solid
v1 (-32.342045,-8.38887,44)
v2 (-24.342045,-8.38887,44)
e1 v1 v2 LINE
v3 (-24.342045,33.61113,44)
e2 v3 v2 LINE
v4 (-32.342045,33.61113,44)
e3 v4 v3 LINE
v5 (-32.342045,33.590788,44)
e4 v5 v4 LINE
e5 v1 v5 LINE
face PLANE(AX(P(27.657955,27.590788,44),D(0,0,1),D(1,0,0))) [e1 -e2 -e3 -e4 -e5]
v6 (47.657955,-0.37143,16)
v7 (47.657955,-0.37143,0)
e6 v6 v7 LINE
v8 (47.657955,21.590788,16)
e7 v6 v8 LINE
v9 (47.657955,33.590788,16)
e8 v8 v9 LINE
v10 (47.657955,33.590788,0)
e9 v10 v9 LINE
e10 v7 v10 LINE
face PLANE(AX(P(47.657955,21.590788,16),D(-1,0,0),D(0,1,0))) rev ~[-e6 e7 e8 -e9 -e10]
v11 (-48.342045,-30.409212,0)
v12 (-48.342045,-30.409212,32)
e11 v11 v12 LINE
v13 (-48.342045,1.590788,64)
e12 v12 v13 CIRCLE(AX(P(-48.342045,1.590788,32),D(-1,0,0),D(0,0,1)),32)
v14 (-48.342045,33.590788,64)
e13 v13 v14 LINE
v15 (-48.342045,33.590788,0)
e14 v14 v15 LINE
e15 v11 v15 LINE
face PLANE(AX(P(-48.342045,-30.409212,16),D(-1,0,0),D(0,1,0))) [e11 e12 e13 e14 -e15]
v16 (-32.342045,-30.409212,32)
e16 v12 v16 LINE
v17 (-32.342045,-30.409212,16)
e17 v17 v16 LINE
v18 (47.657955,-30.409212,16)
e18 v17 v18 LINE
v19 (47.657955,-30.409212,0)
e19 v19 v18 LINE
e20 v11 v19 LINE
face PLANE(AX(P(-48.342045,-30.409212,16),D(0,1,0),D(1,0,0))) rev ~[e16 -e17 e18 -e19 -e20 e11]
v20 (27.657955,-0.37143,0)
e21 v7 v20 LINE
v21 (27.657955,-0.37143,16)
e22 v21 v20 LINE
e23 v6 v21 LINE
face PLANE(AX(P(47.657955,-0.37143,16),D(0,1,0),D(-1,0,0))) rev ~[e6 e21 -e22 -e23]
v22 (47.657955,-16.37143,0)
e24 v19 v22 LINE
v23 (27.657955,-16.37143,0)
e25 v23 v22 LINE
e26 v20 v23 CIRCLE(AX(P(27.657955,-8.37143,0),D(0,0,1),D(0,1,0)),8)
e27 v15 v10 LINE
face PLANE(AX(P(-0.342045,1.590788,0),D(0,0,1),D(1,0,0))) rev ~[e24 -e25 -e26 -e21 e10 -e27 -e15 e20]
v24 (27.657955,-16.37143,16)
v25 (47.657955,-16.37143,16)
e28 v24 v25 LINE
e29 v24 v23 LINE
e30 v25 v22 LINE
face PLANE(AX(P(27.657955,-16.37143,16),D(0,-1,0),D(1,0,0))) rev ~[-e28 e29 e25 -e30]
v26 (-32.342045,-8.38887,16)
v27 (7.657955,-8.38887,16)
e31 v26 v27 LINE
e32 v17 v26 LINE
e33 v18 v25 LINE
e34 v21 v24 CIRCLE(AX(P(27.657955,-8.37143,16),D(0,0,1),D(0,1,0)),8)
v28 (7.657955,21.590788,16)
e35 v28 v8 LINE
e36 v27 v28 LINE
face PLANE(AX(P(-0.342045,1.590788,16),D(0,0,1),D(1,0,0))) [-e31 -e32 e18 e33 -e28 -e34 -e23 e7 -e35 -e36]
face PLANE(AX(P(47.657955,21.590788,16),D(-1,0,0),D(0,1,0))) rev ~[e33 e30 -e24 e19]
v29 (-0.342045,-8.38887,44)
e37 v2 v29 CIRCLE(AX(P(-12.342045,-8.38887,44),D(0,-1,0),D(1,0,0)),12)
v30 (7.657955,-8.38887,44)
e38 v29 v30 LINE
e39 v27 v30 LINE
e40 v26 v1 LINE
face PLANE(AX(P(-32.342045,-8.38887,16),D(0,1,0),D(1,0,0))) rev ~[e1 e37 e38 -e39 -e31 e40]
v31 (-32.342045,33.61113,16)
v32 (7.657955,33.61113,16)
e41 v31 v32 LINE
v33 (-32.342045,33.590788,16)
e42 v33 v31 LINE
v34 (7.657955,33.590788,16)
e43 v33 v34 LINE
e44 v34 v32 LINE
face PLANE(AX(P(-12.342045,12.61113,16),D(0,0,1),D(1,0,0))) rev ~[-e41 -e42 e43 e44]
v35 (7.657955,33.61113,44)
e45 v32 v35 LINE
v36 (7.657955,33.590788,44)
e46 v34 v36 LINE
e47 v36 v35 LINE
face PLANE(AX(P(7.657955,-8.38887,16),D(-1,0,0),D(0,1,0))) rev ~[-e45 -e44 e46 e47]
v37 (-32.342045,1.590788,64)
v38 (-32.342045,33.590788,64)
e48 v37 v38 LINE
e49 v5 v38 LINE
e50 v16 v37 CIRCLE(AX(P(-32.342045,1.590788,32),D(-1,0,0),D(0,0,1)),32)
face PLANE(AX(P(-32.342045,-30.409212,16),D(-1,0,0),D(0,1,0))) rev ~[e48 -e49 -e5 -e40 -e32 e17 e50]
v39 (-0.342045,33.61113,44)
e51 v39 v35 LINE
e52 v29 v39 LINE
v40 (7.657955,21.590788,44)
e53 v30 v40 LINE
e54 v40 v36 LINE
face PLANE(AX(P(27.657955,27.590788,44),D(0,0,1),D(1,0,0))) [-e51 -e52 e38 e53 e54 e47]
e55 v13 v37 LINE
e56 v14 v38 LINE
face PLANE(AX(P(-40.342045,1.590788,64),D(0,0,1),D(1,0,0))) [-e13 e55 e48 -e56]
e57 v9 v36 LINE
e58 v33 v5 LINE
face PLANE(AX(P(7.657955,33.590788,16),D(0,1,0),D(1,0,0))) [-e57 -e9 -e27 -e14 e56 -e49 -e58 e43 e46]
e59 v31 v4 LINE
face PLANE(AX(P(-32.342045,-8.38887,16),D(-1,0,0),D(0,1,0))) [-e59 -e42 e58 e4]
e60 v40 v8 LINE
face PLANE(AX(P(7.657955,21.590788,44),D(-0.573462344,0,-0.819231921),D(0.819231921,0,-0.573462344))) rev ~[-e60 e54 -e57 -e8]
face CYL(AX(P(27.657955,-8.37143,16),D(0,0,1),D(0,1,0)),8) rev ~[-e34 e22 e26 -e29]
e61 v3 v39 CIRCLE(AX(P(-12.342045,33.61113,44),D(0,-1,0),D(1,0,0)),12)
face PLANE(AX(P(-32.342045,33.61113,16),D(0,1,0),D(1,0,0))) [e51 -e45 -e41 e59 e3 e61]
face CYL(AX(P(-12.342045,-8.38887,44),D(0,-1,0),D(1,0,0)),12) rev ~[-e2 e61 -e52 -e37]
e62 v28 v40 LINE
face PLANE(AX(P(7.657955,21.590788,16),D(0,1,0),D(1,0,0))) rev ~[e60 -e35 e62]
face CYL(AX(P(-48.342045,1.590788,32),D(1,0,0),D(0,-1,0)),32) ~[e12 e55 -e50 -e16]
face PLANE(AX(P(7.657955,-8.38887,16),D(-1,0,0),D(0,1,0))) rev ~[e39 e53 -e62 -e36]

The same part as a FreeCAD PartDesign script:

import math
import FreeCAD as App
import Part
import Sketcher
Q = App.Units.Quantity


def edges_at(feature, points):
    """Names of the edges that pass closest to the given points."""
    edges = feature.Shape.Edges
    near = lambda p: min(range(len(edges)), key=lambda i: edges[i].distToShape(Part.Vertex(*p))[0])
    return sorted({f"Edge{near(p) + 1}" for p in points})

doc = App.newDocument("Part")
body = doc.addObject("PartDesign::Body", "Body")

# Sketch on XY plane
sketch1 = doc.addObject("Sketcher::SketchObject", "Sketch")
body.addObject(sketch1)
sketch1.AttachmentSupport = (doc.XY_Plane, [""])
sketch1.MapMode = "FlatFace"
sketch1.addGeometry([
    Part.LineSegment(App.Vector(-48.342045, 33.590788, 0), App.Vector(-48.342045, -30.409212, 0)),
    Part.LineSegment(App.Vector(-48.342045, -30.409212, 0), App.Vector(47.657955, -30.409212, 0)),
    Part.LineSegment(App.Vector(47.657955, -30.409212, 0), App.Vector(47.657955, 33.590788, 0)),
    Part.LineSegment(App.Vector(47.657955, 33.590788, 0), App.Vector(-48.342045, 33.590788, 0)),
], False)
sketch1.addConstraint([
    Sketcher.Constraint("Coincident", 0, 2, 1, 1),
    Sketcher.Constraint("Coincident", 1, 2, 2, 1),
    Sketcher.Constraint("Coincident", 2, 2, 3, 1),
    Sketcher.Constraint("Coincident", 3, 2, 0, 1),
    Sketcher.Constraint("Vertical", 0),
    Sketcher.Constraint("Horizontal", 1),
    Sketcher.Constraint("Vertical", 2),
    Sketcher.Constraint("Horizontal", 3),
    Sketcher.Constraint("DistanceX", 1, 1, 1, 2, Q("96 mm")),
    Sketcher.Constraint("DistanceY", 0, 2, 0, 1, Q("64 mm")),
    Sketcher.Constraint("DistanceY", 0, 2, -1, 1, Q("30.409212 mm")),
    Sketcher.Constraint("DistanceX", 0, 2, -1, 1, Q("48.342045 mm")),
])
pad1 = doc.addObject("PartDesign::Pad", "Pad")
body.addObject(pad1)
pad1.Profile = sketch1
pad1.Length = 16

# Sketch on XY plane
sketch2 = doc.addObject("Sketcher::SketchObject", "Sketch001")
body.addObject(sketch2)
sketch2.AttachmentSupport = (doc.XY_Plane, [""])
sketch2.MapMode = "FlatFace"
sketch2.AttachmentOffset = App.Placement(App.Vector(0, 0, 16), App.Rotation())
sketch2.addGeometry([
    Part.LineSegment(App.Vector(-48.342045, 33.590788, 0), App.Vector(-48.342045, -30.409212, 0)),
    Part.LineSegment(App.Vector(-48.342045, -30.409212, 0), App.Vector(-32.342045, -30.409212, 0)),
    Part.LineSegment(App.Vector(-32.342045, -30.409212, 0), App.Vector(-32.342045, 33.590788, 0)),
    Part.LineSegment(App.Vector(-32.342045, 33.590788, 0), App.Vector(-48.342045, 33.590788, 0)),
], False)
sketch2.addConstraint([
    Sketcher.Constraint("Coincident", 0, 2, 1, 1),
    Sketcher.Constraint("Coincident", 1, 2, 2, 1),
    Sketcher.Constraint("Coincident", 2, 2, 3, 1),
    Sketcher.Constraint("Coincident", 3, 2, 0, 1),
    Sketcher.Constraint("Vertical", 0),
    Sketcher.Constraint("Horizontal", 1),
    Sketcher.Constraint("Vertical", 2),
    Sketcher.Constraint("Horizontal", 3),
    Sketcher.Constraint("DistanceX", 1, 1, 1, 2, Q("16 mm")),
    Sketcher.Constraint("DistanceY", 0, 2, 0, 1, Q("64 mm")),
    Sketcher.Constraint("DistanceY", 0, 2, -1, 1, Q("30.409212 mm")),
    Sketcher.Constraint("DistanceX", 0, 2, -1, 1, Q("48.342045 mm")),
])
pad2 = doc.addObject("PartDesign::Pad", "Pad001")
body.addObject(pad2)
pad2.Profile = sketch2
pad2.Length = 48
doc.recompute()

fillet = doc.addObject("PartDesign::Fillet", "Fillet")
body.addObject(fillet)
fillet.Base = (pad2, edges_at(pad2, [(-40.342, -30.409, 64)]))
fillet.Radius = 32

# Sketch on XY plane
sketch3 = doc.addObject("Sketcher::SketchObject", "Sketch002")
body.addObject(sketch3)
sketch3.AttachmentSupport = (doc.XY_Plane, [""])
sketch3.MapMode = "FlatFace"
sketch3.AttachmentOffset = App.Placement(App.Vector(0, 0, 16), App.Rotation())
sketch3.addGeometry([
    Part.LineSegment(App.Vector(-32.342045, 33.61113, 0), App.Vector(-32.342045, -8.38887, 0)),
    Part.LineSegment(App.Vector(-32.342045, -8.38887, 0), App.Vector(7.657955, -8.38887, 0)),
    Part.LineSegment(App.Vector(7.657955, -8.38887, 0), App.Vector(7.657955, 33.61113, 0)),
    Part.LineSegment(App.Vector(7.657955, 33.61113, 0), App.Vector(-32.342045, 33.61113, 0)),
], False)
sketch3.addConstraint([
    Sketcher.Constraint("Coincident", 0, 2, 1, 1),
    Sketcher.Constraint("Coincident", 1, 2, 2, 1),
    Sketcher.Constraint("Coincident", 2, 2, 3, 1),
    Sketcher.Constraint("Coincident", 3, 2, 0, 1),
    Sketcher.Constraint("Vertical", 0),
    Sketcher.Constraint("Horizontal", 1),
    Sketcher.Constraint("Vertical", 2),
    Sketcher.Constraint("Horizontal", 3),
    Sketcher.Constraint("DistanceX", 1, 1, 1, 2, Q("40 mm")),
    Sketcher.Constraint("DistanceY", 0, 2, 0, 1, Q("42 mm")),
    Sketcher.Constraint("DistanceY", 0, 2, -1, 1, Q("8.38887 mm")),
    Sketcher.Constraint("DistanceX", 0, 2, -1, 1, Q("32.342045 mm")),
])
pad3 = doc.addObject("PartDesign::Pad", "Pad002")
body.addObject(pad3)
pad3.Profile = sketch3
pad3.Length = 28

# Sketch on XY plane
sketch4 = doc.addObject("Sketcher::SketchObject", "Sketch003")
body.addObject(sketch4)
sketch4.AttachmentSupport = (doc.XY_Plane, [""])
sketch4.MapMode = "FlatFace"
sketch4.AttachmentOffset = App.Placement(App.Vector(0, 0, 16), App.Rotation())
sketch4.addGeometry([
    Part.LineSegment(App.Vector(7.657955, 33.590788, 0), App.Vector(7.657955, 21.590788, 0)),
    Part.LineSegment(App.Vector(7.657955, 21.590788, 0), App.Vector(47.657955, 21.590788, 0)),
    Part.LineSegment(App.Vector(47.657955, 21.590788, 0), App.Vector(47.657955, 33.590788, 0)),
    Part.LineSegment(App.Vector(47.657955, 33.590788, 0), App.Vector(7.657955, 33.590788, 0)),
], False)
sketch4.addConstraint([
    Sketcher.Constraint("Coincident", 0, 2, 1, 1),
    Sketcher.Constraint("Coincident", 1, 2, 2, 1),
    Sketcher.Constraint("Coincident", 2, 2, 3, 1),
    Sketcher.Constraint("Coincident", 3, 2, 0, 1),
    Sketcher.Constraint("Vertical", 0),
    Sketcher.Constraint("Horizontal", 1),
    Sketcher.Constraint("Vertical", 2),
    Sketcher.Constraint("Horizontal", 3),
    Sketcher.Constraint("DistanceX", 1, 1, 1, 2, Q("40 mm")),
    Sketcher.Constraint("DistanceY", 0, 2, 0, 1, Q("12 mm")),
    Sketcher.Constraint("DistanceY", -1, 1, 0, 2, Q("21.590788 mm")),
    Sketcher.Constraint("DistanceX", -1, 1, 0, 2, Q("7.657955 mm")),
])
pad4 = doc.addObject("PartDesign::Pad", "Pad003")
body.addObject(pad4)
pad4.Profile = sketch4
pad4.Length = 28

# Sketch on XZ plane
sketch5 = doc.addObject("Sketcher::SketchObject", "Sketch004")
body.addObject(sketch5)
sketch5.AttachmentSupport = (doc.XZ_Plane, [""])
sketch5.MapMode = "FlatFace"
sketch5.AttachmentOffset = App.Placement(App.Vector(0, 0, -21.590788), App.Rotation())
sketch5.addGeometry([
    Part.LineSegment(App.Vector(47.657955, 44, 0), App.Vector(7.657955, 44, 0)),
    Part.LineSegment(App.Vector(7.657955, 44, 0), App.Vector(47.657955, 16, 0)),
    Part.LineSegment(App.Vector(47.657955, 16, 0), App.Vector(47.657955, 44, 0)),
], False)
sketch5.addConstraint([
    Sketcher.Constraint("Coincident", 0, 2, 1, 1),
    Sketcher.Constraint("Coincident", 1, 2, 2, 1),
    Sketcher.Constraint("Coincident", 2, 2, 0, 1),
    Sketcher.Constraint("Horizontal", 0),
    Sketcher.Constraint("Vertical", 2),
    Sketcher.Constraint("DistanceX", 0, 2, 0, 1, Q("40 mm")),
    Sketcher.Constraint("DistanceY", 2, 1, 2, 2, Q("28 mm")),
    Sketcher.Constraint("DistanceY", -1, 1, 0, 2, Q("44 mm")),
    Sketcher.Constraint("DistanceX", -1, 1, 0, 2, Q("7.657955 mm")),
])
pocket1 = doc.addObject("PartDesign::Pocket", "Pocket")
body.addObject(pocket1)
pocket1.Profile = sketch5
pocket1.Length = 25.4

# Sketch on XZ plane
sketch6 = doc.addObject("Sketcher::SketchObject", "Sketch005")
body.addObject(sketch6)
sketch6.AttachmentSupport = (doc.XZ_Plane, [""])
sketch6.MapMode = "FlatFace"
sketch6.AttachmentOffset = App.Placement(App.Vector(0, 0, 8.38887), App.Rotation())
sketch6.addGeometry(Part.Circle(App.Vector(-12.342045, 44, 0), App.Vector(0, 0, 1), 12), False)
sketch6.addConstraint([
    Sketcher.Constraint("Diameter", 0, Q("24 mm")),
    Sketcher.Constraint("DistanceY", -1, 1, 0, 3, Q("44 mm")),
    Sketcher.Constraint("DistanceX", 0, 3, -1, 1, Q("12.342045 mm")),
])
pocket2 = doc.addObject("PartDesign::Pocket", "Pocket001")
body.addObject(pocket2)
pocket2.Profile = sketch6
pocket2.Length = 63.246

# Sketch on XY plane
sketch7 = doc.addObject("Sketcher::SketchObject", "Sketch006")
body.addObject(sketch7)
sketch7.AttachmentSupport = (doc.XY_Plane, [""])
sketch7.MapMode = "FlatFace"
sketch7.AttachmentOffset = App.Placement(App.Vector(0, 0, 16), App.Rotation())
sketch7.addGeometry([
    Part.LineSegment(App.Vector(27.657955, -16.37143, 0), App.Vector(47.657955, -16.37143, 0)),
    Part.LineSegment(App.Vector(47.657955, -16.37143, 0), App.Vector(47.657955, -0.37143, 0)),
    Part.LineSegment(App.Vector(47.657955, -0.37143, 0), App.Vector(27.657955, -0.37143, 0)),
    Part.ArcOfCircle(Part.Circle(App.Vector(27.657955, -8.37143, 0), App.Vector(0, 0, 1), 8), math.radians(90), math.radians(270)),
], False)
sketch7.addConstraint([
    Sketcher.Constraint("Coincident", 0, 2, 1, 1),
    Sketcher.Constraint("Coincident", 1, 2, 2, 1),
    Sketcher.Constraint("Tangent", 2, 2, 3, 1),
    Sketcher.Constraint("Tangent", 3, 2, 0, 1),
    Sketcher.Constraint("Horizontal", 0),
    Sketcher.Constraint("Vertical", 1),
    Sketcher.Constraint("Horizontal", 2),
    Sketcher.Constraint("Radius", 3, Q("8 mm")),
    Sketcher.Constraint("DistanceX", 0, 1, 0, 2, Q("20 mm")),
    Sketcher.Constraint("DistanceY", 3, 3, -1, 1, Q("8.37143 mm")),
    Sketcher.Constraint("DistanceX", -1, 1, 3, 3, Q("27.657955 mm")),
])
pocket3 = doc.addObject("PartDesign::Pocket", "Pocket002")
body.addObject(pocket3)
pocket3.Profile = sketch7
pocket3.Length = 25.4

doc.recompute()
